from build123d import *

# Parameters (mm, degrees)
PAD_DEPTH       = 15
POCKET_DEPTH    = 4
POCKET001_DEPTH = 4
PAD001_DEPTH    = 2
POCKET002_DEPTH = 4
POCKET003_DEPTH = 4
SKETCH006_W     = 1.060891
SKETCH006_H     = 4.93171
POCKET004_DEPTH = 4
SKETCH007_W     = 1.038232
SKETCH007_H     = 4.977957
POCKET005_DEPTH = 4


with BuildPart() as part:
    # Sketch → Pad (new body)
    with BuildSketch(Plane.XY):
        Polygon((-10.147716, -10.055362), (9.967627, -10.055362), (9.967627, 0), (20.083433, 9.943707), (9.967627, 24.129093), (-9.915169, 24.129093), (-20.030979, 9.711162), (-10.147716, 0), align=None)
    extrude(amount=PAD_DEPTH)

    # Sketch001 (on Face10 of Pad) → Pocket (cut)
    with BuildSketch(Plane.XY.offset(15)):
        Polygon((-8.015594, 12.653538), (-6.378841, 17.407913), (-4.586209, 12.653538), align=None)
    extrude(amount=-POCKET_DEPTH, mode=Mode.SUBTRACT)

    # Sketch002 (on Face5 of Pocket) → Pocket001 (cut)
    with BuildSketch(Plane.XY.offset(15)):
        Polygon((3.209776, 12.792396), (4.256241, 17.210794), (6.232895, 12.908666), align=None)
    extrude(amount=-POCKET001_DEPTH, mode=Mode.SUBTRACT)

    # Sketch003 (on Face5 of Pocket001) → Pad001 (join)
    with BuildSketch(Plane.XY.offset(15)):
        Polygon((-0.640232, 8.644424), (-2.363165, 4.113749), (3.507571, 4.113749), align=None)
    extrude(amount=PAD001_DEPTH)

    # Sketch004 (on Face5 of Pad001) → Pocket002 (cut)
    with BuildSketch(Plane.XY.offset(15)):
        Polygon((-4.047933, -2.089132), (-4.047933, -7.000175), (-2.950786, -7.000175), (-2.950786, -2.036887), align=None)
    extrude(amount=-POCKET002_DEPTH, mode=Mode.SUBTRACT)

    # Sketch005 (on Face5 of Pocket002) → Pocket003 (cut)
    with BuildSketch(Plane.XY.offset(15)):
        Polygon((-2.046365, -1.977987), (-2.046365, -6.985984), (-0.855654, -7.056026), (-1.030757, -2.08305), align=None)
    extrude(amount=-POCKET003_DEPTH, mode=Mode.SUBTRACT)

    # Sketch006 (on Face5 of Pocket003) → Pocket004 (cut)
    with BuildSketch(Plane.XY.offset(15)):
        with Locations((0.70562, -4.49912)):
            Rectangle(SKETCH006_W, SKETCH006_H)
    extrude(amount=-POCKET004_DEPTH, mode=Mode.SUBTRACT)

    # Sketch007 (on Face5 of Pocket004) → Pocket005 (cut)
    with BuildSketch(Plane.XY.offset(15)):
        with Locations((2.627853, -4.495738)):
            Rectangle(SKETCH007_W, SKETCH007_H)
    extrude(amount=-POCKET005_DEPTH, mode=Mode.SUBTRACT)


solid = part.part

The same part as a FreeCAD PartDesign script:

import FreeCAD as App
import Part
import Sketcher
from FreeCAD import Vector


def add_polygon(sketch, points):
    """Adds a closed chain of lines whose ends are joined by coincident constraints."""
    first, n = sketch.GeometryCount, len(points)
    for a, b in zip(points, points[1:] + points[:1]):
        sketch.addGeometry(Part.LineSegment(App.Vector(*a, 0), App.Vector(*b, 0)), False)
    for i in range(n):
        sketch.addConstraint(Sketcher.Constraint("Coincident", first + i, 2, first + (i + 1) % n, 1))

doc = App.newDocument("Part")
body = doc.addObject("PartDesign::Body", "Body")

# Sketch on XY plane
sketch1 = body.newObject("Sketcher::SketchObject", "Sketch")
sketch1.AttachmentSupport = (doc.getObject("XY_Plane"), [""])
sketch1.MapMode = "FlatFace"
add_polygon(sketch1, [(-10, -10), (10, -10), (10, 0), (20, 10), (10, 24), (-10, 24), (-20, 10), (-10, 0)])  # lines 0-7
sketch1.addConstraint(Sketcher.Constraint("Horizontal", 0))
sketch1.addConstraint(Sketcher.Constraint("Vertical", 1))
sketch1.addConstraint(Sketcher.Constraint("Horizontal", 4))
sketch1.addConstraint(Sketcher.Constraint("Vertical", 7))
sketch1.addConstraint(Sketcher.Constraint("PointOnObject", 1, 2, -1))
sketch1.addConstraint(Sketcher.Constraint("PointOnObject", 6, 2, -1))
sketch1.addConstraint(Sketcher.Constraint("Vertical", 1, 2, 3, 2))
sketch1.addConstraint(Sketcher.Constraint("DistanceX", 4, 2, 2, 2, 29.998602))
sketch1.addConstraint(Sketcher.Constraint("Distance", 2, 14.18474))
sketch1.addConstraint(Sketcher.Constraint("Distance", 3, 17.422821))
sketch1.addConstraint(Sketcher.Constraint("DistanceX", 0, 1, 0, 2, 20.115343))
sketch1.addConstraint(Sketcher.Constraint("DistanceX", 4, 2, 4, 1, 19.882796))
sketch1.addConstraint(Sketcher.Constraint("DistanceY", 1, 1, 1, 2, 10.055362))
sketch1.addConstraint(Sketcher.Constraint("DistanceX", 4, 2, -1, 1, 9.915169))
sketch1.addConstraint(Sketcher.Constraint("DistanceX", 5, 2, -1, 1, 20.030979))
sketch1.addConstraint(Sketcher.Constraint("DistanceY", 5, 2, 4, 2, 14.417931))
pad1 = body.newObject("PartDesign::Pad", "Pad")
pad1.Profile = sketch1
pad1.Length = 15

# Sketch on XY plane
sketch2 = body.newObject("Sketcher::SketchObject", "Sketch001")
sketch2.AttachmentSupport = (doc.getObject("XY_Plane"), [""])
sketch2.MapMode = "FlatFace"
sketch2.AttachmentOffset = App.Placement(Vector(0, 0, 15), App.Rotation())
add_polygon(sketch2, [(-6.4, 17.4), (-8, 12.7), (-4.6, 12.7)])  # lines 0-2
sketch2.addConstraint(Sketcher.Constraint("Horizontal", 1))
sketch2.addConstraint(Sketcher.Constraint("DistanceX", 1, 1, 1, 2, 3.429385))
sketch2.addConstraint(Sketcher.Constraint("DistanceX", 1, 2, -1, 1, 4.586209))
sketch2.addConstraint(Sketcher.Constraint("DistanceX", 2, 2, -1, 1, 6.378841))
sketch2.addConstraint(Sketcher.Constraint("Distance", 0, 5.028225))
sketch2.addConstraint(Sketcher.Constraint("DistanceY", -1, 1, 0, 2, 12.653538))
pocket1 = body.newObject("PartDesign::Pocket", "Pocket")
pocket1.Profile = sketch2
pocket1.Length = 4

# Sketch on XY plane
sketch3 = body.newObject("Sketcher::SketchObject", "Sketch002")
sketch3.AttachmentSupport = (doc.getObject("XY_Plane"), [""])
sketch3.MapMode = "FlatFace"
sketch3.AttachmentOffset = App.Placement(Vector(0, 0, 15), App.Rotation())
add_polygon(sketch3, [(4.3, 17.2), (3.2, 12.8), (6.2, 12.9)])  # lines 0-2
sketch3.addConstraint(Sketcher.Constraint("Distance", 0, 4.540631))
sketch3.addConstraint(Sketcher.Constraint("DistanceX", -1, 1, 2, 2, 4.256241))
sketch3.addConstraint(Sketcher.Constraint("DistanceX", 0, 2, 1, 2, 3.023119))
sketch3.addConstraint(Sketcher.Constraint("DistanceY", 0, 2, 1, 2, 0.11627))
sketch3.addConstraint(Sketcher.Constraint("Distance", 2, 4.734497))
sketch3.addConstraint(Sketcher.Constraint("DistanceY", -1, 1, 0, 2, 12.792396))
pocket2 = body.newObject("PartDesign::Pocket", "Pocket001")
pocket2.Profile = sketch3
pocket2.Length = 4

# Sketch on XY plane
sketch4 = body.newObject("Sketcher::SketchObject", "Sketch003")
sketch4.AttachmentSupport = (doc.getObject("XY_Plane"), [""])
sketch4.MapMode = "FlatFace"
sketch4.AttachmentOffset = App.Placement(Vector(0, 0, 15), App.Rotation())
add_polygon(sketch4, [(-0.6, 8.6), (-2.4, 4.1), (3.5, 4.1)])  # lines 0-2
sketch4.addConstraint(Sketcher.Constraint("Horizontal", 1))
sketch4.addConstraint(Sketcher.Constraint("Distance", 2, 6.14258))
sketch4.addConstraint(Sketcher.Constraint("DistanceX", 1, 1, 1, 2, 5.870736))
sketch4.addConstraint(Sketcher.Constraint("DistanceY", -1, 1, 0, 2, 4.113749))
sketch4.addConstraint(Sketcher.Constraint("DistanceX", -1, 1, 1, 2, 3.507571))
sketch4.addConstraint(Sketcher.Constraint("Distance", 0, 4.847217))
pad2 = body.newObject("PartDesign::Pad", "Pad001")
pad2.Profile = sketch4
pad2.Length = 2

# Sketch on XY plane
sketch5 = body.newObject("Sketcher::SketchObject", "Sketch004")
sketch5.AttachmentSupport = (doc.getObject("XY_Plane"), [""])
sketch5.MapMode = "FlatFace"
sketch5.AttachmentOffset = App.Placement(Vector(0, 0, 15), App.Rotation())
add_polygon(sketch5, [(-4, -2.1), (-4, -7), (-3, -7), (-3, -2)])  # lines 0-3
sketch5.addConstraint(Sketcher.Constraint("Vertical", 0))
sketch5.addConstraint(Sketcher.Constraint("Horizontal", 1))
sketch5.addConstraint(Sketcher.Constraint("Vertical", 2))
sketch5.addConstraint(Sketcher.Constraint("Distance", 3, 1.09839))
sketch5.addConstraint(Sketcher.Constraint("DistanceX", 1, 1, 1, 2, 1.097147))
sketch5.addConstraint(Sketcher.Constraint("DistanceY", 0, 2, 0, 1, 4.911043))
sketch5.addConstraint(Sketcher.Constraint("DistanceX", 0, 2, -1, 1, 4.047933))
sketch5.addConstraint(Sketcher.Constraint("DistanceY", 0, 2, -1, 1, 7.000175))
pocket3 = body.newObject("PartDesign::Pocket", "Pocket002")
pocket3.Profile = sketch5
pocket3.Length = 4

# Sketch on XY plane
sketch6 = body.newObject("Sketcher::SketchObject", "Sketch005")
sketch6.AttachmentSupport = (doc.getObject("XY_Plane"), [""])
sketch6.MapMode = "FlatFace"
sketch6.AttachmentOffset = App.Placement(Vector(0, 0, 15), App.Rotation())
add_polygon(sketch6, [(-2, -2), (-2, -7), (-0.9, -7.1), (-1, -2.1)])  # lines 0-3
sketch6.addConstraint(Sketcher.Constraint("Vertical", 0))
sketch6.addConstraint(Sketcher.Constraint("Distance", 1, 1.192769))
sketch6.addConstraint(Sketcher.Constraint("DistanceY", 0, 2, 0, 1, 5.007997))
sketch6.addConstraint(Sketcher.Constraint("DistanceY", 2, 2, -1, 1, 2.08305))
sketch6.addConstraint(Sketcher.Constraint("DistanceX", 0, 2, 1, 2, 1.190711))
sketch6.addConstraint(Sketcher.Constraint("DistanceX", 0, 2, 2, 2, 1.015608))
sketch6.addConstraint(Sketcher.Constraint("Distance", 2, 4.976058))
sketch6.addConstraint(Sketcher.Constraint("DistanceX", 0, 2, -1, 1, 2.046365))
pocket4 = body.newObject("PartDesign::Pocket", "Pocket003")
pocket4.Profile = sketch6
pocket4.Length = 4

# Sketch on XY plane
sketch7 = body.newObject("Sketcher::SketchObject", "Sketch006")
sketch7.AttachmentSupport = (doc.getObject("XY_Plane"), [""])
sketch7.MapMode = "FlatFace"
sketch7.AttachmentOffset = App.Placement(Vector(0, 0, 15), App.Rotation())
add_polygon(sketch7, [(0.2, -2), (0.2, -7), (1.2, -7), (1.2, -2)])  # lines 0-3
sketch7.addConstraint(Sketcher.Constraint("Vertical", 0))
sketch7.addConstraint(Sketcher.Constraint("Horizontal", 1))
sketch7.addConstraint(Sketcher.Constraint("Vertical", 2))
sketch7.addConstraint(Sketcher.Constraint("Horizontal", 3))
sketch7.addConstraint(Sketcher.Constraint("DistanceX", 1, 1, 1, 2, 1.060891))
sketch7.addConstraint(Sketcher.Constraint("DistanceY", 0, 2, 0, 1, 4.93171))
sketch7.addConstraint(Sketcher.Constraint("DistanceX", -1, 1, 0, 2, 0.175175))
sketch7.addConstraint(Sketcher.Constraint("DistanceY", 0, 2, -1, 1, 6.964975))
pocket5 = body.newObject("PartDesign::Pocket", "Pocket004")
pocket5.Profile = sketch7
pocket5.Length = 4

# Sketch on XY plane
sketch8 = body.newObject("Sketcher::SketchObject", "Sketch007")
sketch8.AttachmentSupport = (doc.getObject("XY_Plane"), [""])
sketch8.MapMode = "FlatFace"
sketch8.AttachmentOffset = App.Placement(Vector(0, 0, 15), App.Rotation())
add_polygon(sketch8, [(2.1, -2), (2.1, -7), (3.1, -7), (3.1, -2)])  # lines 0-3
sketch8.addConstraint(Sketcher.Constraint("Vertical", 0))
sketch8.addConstraint(Sketcher.Constraint("Horizontal", 1))
sketch8.addConstraint(Sketcher.Constraint("Vertical", 2))
sketch8.addConstraint(Sketcher.Constraint("Horizontal", 3))
sketch8.addConstraint(Sketcher.Constraint("DistanceX", 1, 1, 1, 2, 1.038232))
sketch8.addConstraint(Sketcher.Constraint("DistanceY", 0, 2, 0, 1, 4.977957))
sketch8.addConstraint(Sketcher.Constraint("DistanceX", -1, 1, 1, 2, 3.146969))
sketch8.addConstraint(Sketcher.Constraint("DistanceY", 2, 2, -1, 1, 2.006759))
pocket6 = body.newObject("PartDesign::Pocket", "Pocket005")
pocket6.Profile = sketch8
pocket6.Length = 4

doc.recompute()
